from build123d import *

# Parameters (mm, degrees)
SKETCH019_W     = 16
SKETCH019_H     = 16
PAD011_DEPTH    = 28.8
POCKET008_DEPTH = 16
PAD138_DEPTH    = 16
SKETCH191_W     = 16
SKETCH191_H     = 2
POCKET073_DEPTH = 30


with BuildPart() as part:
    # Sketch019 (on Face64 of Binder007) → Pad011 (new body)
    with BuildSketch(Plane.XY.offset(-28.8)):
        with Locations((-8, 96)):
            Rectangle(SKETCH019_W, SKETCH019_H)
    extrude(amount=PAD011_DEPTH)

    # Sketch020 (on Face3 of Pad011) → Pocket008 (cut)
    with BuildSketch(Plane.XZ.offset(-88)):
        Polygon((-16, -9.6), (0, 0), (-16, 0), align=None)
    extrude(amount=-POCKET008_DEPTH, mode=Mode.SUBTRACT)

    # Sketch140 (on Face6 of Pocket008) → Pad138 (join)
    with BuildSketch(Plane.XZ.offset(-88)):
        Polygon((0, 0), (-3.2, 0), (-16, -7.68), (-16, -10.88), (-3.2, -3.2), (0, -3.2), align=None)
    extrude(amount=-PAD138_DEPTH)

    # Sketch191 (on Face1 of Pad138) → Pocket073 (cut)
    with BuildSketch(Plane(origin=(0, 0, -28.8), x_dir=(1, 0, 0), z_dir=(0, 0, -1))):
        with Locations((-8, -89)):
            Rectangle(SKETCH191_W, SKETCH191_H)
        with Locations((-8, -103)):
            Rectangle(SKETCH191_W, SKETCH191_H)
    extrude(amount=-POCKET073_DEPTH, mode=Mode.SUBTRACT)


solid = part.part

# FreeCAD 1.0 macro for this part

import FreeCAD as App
import Part
import Sketcher

V = App.Vector


def add_polygon(sketch, points):
    """Adds a closed chain of lines whose ends are joined by coincident constraints."""
    first, n = sketch.GeometryCount, len(points)
    for a, b in zip(points, points[1:] + points[:1]):
        sketch.addGeometry(Part.LineSegment(App.Vector(*a, 0), App.Vector(*b, 0)), False)
    for i in range(n):
        sketch.addConstraint(Sketcher.Constraint("Coincident", first + i, 2, first + (i + 1) % n, 1))

doc = App.newDocument("Part")
body = doc.addObject("PartDesign::Body", "Body")

sketch1 = body.newObject("Sketcher::SketchObject", "Sketch")
sketch1.AttachmentSupport = (doc.getObject("XY_Plane"), [""])
sketch1.MapMode = "FlatFace"
sketch1.AttachmentOffset = App.Placement(V(0, 0, -28.8), App.Rotation())
add_polygon(sketch1, [(-16, 104), (-16, 88), (0, 88), (0, 104)])
sketch1.addConstraint([
    Sketcher.Constraint("Vertical", 0),
    Sketcher.Constraint("Horizontal", 1),
    Sketcher.Constraint("Vertical", 2),
    Sketcher.Constraint("Horizontal", 3),
    Sketcher.Constraint("PointOnObject", 1, 2, -2),
    Sketcher.Constraint("Equal", 3, 0),
    Sketcher.Constraint("DistanceX", 1, 1, 1, 2, 16.0),
    Sketcher.Constraint("DistanceY", -1, 1, 0, 2, 88.0),
])
pad1 = body.newObject("PartDesign::Pad", "Pad")
pad1.Profile = sketch1
pad1.Length = 28.8

sketch2 = body.newObject("Sketcher::SketchObject", "Sketch001")
sketch2.AttachmentSupport = (doc.getObject("XZ_Plane"), [""])
sketch2.MapMode = "FlatFace"
sketch2.AttachmentOffset = App.Placement(V(0, 0, -88), App.Rotation())
add_polygon(sketch2, [(-16, -10), (0, 0), (-16, 0)])
sketch2.addConstraint([
    Sketcher.Constraint("Horizontal", 1),
    Sketcher.Constraint("Vertical", 2),
    Sketcher.Constraint("Coincident", 0, 2, -1, 1),
    Sketcher.Constraint("DistanceX", 1, 2, 1, 1, 16.0),
    Sketcher.Constraint("DistanceY", 2, 2, 2, 1, 9.6),
])
pocket1 = body.newObject("PartDesign::Pocket", "Pocket")
pocket1.Profile = sketch2
pocket1.Length = 16

sketch3 = body.newObject("Sketcher::SketchObject", "Sketch002")
sketch3.AttachmentSupport = (doc.getObject("XZ_Plane"), [""])
sketch3.MapMode = "FlatFace"
sketch3.AttachmentOffset = App.Placement(V(0, 0, -88), App.Rotation())
add_polygon(sketch3, [(0, 0), (-3.2, 0), (-16, -7.7), (-16, -10.9), (-3.2, -3.2), (0, -3.2)])
sketch3.addConstraint([
    Sketcher.Constraint("Horizontal", 0),
    Sketcher.Constraint("Vertical", 2),
    Sketcher.Constraint("Horizontal", 4),
    Sketcher.Constraint("Vertical", 5),
    Sketcher.Constraint("Coincident", 5, 2, -1, 1),
    Sketcher.Constraint("Parallel", 1, 3),
    Sketcher.Constraint("Vertical", 0, 2, 3, 2),
    Sketcher.Constraint("Equal", 4, 2),
    Sketcher.Constraint("DistanceX", 0, 2, 0, 1, 3.2),
    Sketcher.Constraint("DistanceX", 1, 2, -1, 1, 16.0),
    Sketcher.Constraint("DistanceY", 1, 2, -1, 1, 7.68),
])
pad2 = body.newObject("PartDesign::Pad", "Pad001")
pad2.Profile = sketch3
pad2.Length = 16
pad2.Reversed = True

sketch4 = body.newObject("Sketcher::SketchObject", "Sketch003")
sketch4.AttachmentSupport = (doc.getObject("XY_Plane"), [""])
sketch4.MapMode = "FlatFace"
sketch4.AttachmentOffset = App.Placement(V(0, 0, -28.8), App.Rotation())
add_polygon(sketch4, [(-16, 88), (-16, 90), (0, 90), (0, 88)])
add_polygon(sketch4, [(-16, 102), (-16, 104), (0, 104), (0, 102)])
sketch4.addConstraint([
    Sketcher.Constraint("Vertical", 0),
    Sketcher.Constraint("Horizontal", 1),
    Sketcher.Constraint("Vertical", 2),
    Sketcher.Constraint("Horizontal", 3),
    Sketcher.Constraint("Vertical", 4),
    Sketcher.Constraint("Horizontal", 5),
    Sketcher.Constraint("Vertical", 6),
    Sketcher.Constraint("Horizontal", 7),
    Sketcher.Constraint("PointOnObject", 1, 2, -2),
    Sketcher.Constraint("PointOnObject", 5, 2, -2),
    Sketcher.Constraint("Vertical", 3, 2, 4, 2),
    Sketcher.Constraint("Equal", 2, 4),
    Sketcher.Constraint("DistanceX", 1, 1, 1, 2, 16.0),
    Sketcher.Constraint("DistanceY", 0, 1, 0, 2, 2.0),
    Sketcher.Constraint("DistanceY", -1, 1, 0, 2, 90.0),
    Sketcher.Constraint("DistanceY", -1, 1, 4, 2, 104.0),
])
pocket2 = body.newObject("PartDesign::Pocket", "Pocket001")
pocket2.Profile = sketch4
pocket2.Length = 30
pocket2.Reversed = True

doc.recompute()
